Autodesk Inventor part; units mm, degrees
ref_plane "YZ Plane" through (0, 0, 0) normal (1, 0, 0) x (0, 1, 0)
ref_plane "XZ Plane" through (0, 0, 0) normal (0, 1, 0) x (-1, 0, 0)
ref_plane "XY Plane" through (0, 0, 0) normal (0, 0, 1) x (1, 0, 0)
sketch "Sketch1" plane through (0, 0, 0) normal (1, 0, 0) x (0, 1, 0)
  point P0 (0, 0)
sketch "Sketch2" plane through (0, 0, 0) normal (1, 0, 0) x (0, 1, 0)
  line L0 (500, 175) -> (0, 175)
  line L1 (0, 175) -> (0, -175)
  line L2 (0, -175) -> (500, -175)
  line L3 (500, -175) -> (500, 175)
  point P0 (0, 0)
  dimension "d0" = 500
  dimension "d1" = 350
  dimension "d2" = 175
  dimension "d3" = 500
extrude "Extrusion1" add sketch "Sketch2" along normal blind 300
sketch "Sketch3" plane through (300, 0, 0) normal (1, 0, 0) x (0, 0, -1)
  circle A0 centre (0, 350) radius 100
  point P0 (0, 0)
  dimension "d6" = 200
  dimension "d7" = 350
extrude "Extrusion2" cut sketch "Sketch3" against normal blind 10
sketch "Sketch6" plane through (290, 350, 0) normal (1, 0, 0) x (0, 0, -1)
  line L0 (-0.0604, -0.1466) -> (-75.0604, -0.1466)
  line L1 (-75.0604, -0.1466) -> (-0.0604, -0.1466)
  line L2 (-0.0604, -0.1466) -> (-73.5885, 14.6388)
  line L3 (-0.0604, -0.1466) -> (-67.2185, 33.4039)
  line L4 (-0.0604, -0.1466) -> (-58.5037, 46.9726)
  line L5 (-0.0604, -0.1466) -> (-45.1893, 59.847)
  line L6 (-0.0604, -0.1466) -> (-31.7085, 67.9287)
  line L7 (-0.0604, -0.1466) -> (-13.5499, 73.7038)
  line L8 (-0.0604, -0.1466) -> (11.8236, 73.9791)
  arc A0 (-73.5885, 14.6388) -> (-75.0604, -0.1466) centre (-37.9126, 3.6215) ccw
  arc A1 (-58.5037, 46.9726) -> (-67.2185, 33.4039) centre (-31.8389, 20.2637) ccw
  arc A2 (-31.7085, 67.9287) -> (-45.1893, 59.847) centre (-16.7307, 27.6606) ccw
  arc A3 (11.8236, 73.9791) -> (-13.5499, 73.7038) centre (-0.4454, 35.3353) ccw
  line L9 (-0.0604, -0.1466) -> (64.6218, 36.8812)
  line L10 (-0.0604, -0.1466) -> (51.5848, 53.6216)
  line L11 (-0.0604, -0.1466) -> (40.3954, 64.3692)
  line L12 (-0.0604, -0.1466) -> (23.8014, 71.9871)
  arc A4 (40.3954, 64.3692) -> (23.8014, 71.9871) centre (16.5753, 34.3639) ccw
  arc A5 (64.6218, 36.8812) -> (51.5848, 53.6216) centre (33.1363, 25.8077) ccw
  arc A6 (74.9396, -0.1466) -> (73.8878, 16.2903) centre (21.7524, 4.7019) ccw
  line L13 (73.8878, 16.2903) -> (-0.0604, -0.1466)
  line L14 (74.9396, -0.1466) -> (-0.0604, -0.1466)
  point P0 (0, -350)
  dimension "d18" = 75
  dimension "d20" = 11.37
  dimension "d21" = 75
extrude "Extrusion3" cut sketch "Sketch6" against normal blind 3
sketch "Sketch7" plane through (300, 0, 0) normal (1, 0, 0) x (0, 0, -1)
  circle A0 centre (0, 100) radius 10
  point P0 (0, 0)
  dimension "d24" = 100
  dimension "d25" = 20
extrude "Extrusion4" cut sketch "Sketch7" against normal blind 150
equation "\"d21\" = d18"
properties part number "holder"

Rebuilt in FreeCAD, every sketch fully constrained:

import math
import FreeCAD as App
import Part
import Sketcher

V = App.Vector
Q = App.Units.Quantity


def add_polygon(sketch, points):
    """Adds a closed chain of lines whose ends are joined by coincident constraints."""
    first, n = sketch.GeometryCount, len(points)
    for a, b in zip(points, points[1:] + points[:1]):
        sketch.addGeometry(Part.LineSegment(App.Vector(*a, 0), App.Vector(*b, 0)), False)
    for i in range(n):
        sketch.addConstraint(Sketcher.Constraint("Coincident", first + i, 2, first + (i + 1) % n, 1))

doc = App.newDocument("Part")
body = doc.addObject("PartDesign::Body", "Body")

# Sketch on YZ plane
sketch1 = body.newObject("Sketcher::SketchObject", "Sketch")
sketch1.AttachmentSupport = (doc.getObject("YZ_Plane"), [""])
sketch1.MapMode = "FlatFace"
add_polygon(sketch1, [(500, -175), (500, 175), (0, 175), (0, -175)])  # lines 0-3
sketch1.addConstraint([
    Sketcher.Constraint("Vertical", 0),
    Sketcher.Constraint("Horizontal", 1),
    Sketcher.Constraint("Vertical", 2),
    Sketcher.Constraint("Horizontal", 3),
    Sketcher.Constraint("Symmetric", 1, 2, 2, 2, -1, 1),
    Sketcher.Constraint("DistanceX", 1, 2, 1, 1, 500.0),
    Sketcher.Constraint("DistanceY", 0, 1, 0, 2, 350.0),
])
pad1 = body.newObject("PartDesign::Pad", "Pad")
pad1.Profile = sketch1
pad1.Length = 300

# Sketch on YZ plane
sketch2 = body.newObject("Sketcher::SketchObject", "Sketch001")
sketch2.AttachmentSupport = (doc.getObject("YZ_Plane"), [""])
sketch2.MapMode = "FlatFace"
sketch2.AttachmentOffset = App.Placement(V(0, 0, 300), App.Rotation())
sketch2.addGeometry(Part.Circle(V(350, 0, 0), V(0, 0, 1), 100), False)
sketch2.addConstraint([
    Sketcher.Constraint("PointOnObject", 0, 3, -1),
    Sketcher.Constraint("Diameter", 0, 200.0),
    Sketcher.Constraint("DistanceX", -1, 1, 0, 3, 350.0),
])
pocket1 = body.newObject("PartDesign::Pocket", "Pocket")
pocket1.Profile = sketch2
pocket1.Length = 10

# Sketch on YZ plane
sketch3 = body.newObject("Sketcher::SketchObject", "Sketch002")
sketch3.AttachmentSupport = (doc.getObject("YZ_Plane"), [""])
sketch3.MapMode = "FlatFace"
sketch3.AttachmentOffset = App.Placement(V(0, 0, 290), App.Rotation())
sketch3.addGeometry([
    Part.LineSegment(V(350, 75, 0), V(350, 0, 0)),  # 0
    Part.LineSegment(V(350, 0, 0), V(365, 74, 0)),  # 1
    Part.ArcOfCircle(Part.Circle(V(354, 38, 0), V(0, 0, 1), 37), math.radians(73), math.radians(96)),  # 2
    Part.LineSegment(V(383, 67, 0), V(350, 0, 0)),  # 3
    Part.LineSegment(V(350, 0, 0), V(397, 59, 0)),  # 4
    Part.ArcOfCircle(Part.Circle(V(370, 32, 0), V(0, 0, 1), 38), math.radians(45), math.radians(70)),  # 5
    Part.LineSegment(V(410, 45, 0), V(350, 0, 0)),  # 6
    Part.LineSegment(V(350, 0, 0), V(418, 32, 0)),  # 7
    Part.ArcOfCircle(Part.Circle(V(378, 17, 0), V(0, 0, 1), 43), math.radians(20), math.radians(41)),  # 8
    Part.LineSegment(V(424, 14, 0), V(350, 0, 0)),  # 9
    Part.LineSegment(V(350, 0, 0), V(424, -12, 0)),  # 10
    Part.ArcOfCircle(Part.Circle(V(385, 0, 0), V(0, 0, 1), 41), math.radians(-18), math.radians(19)),  # 11
    Part.LineSegment(V(404, -52, 0), V(350, 0, 0)),  # 12
    Part.LineSegment(V(350, 0, 0), V(387, -65, 0)),  # 13
    Part.ArcOfCircle(Part.Circle(V(376, -33, 0), V(0, 0, 1), 33), math.radians(-71), math.radians(-34)),  # 14
    Part.LineSegment(V(422, -24, 0), V(350, 0, 0)),  # 15
    Part.LineSegment(V(350, 0, 0), V(414, -40, 0)),  # 16
    Part.ArcOfCircle(Part.Circle(V(384, -17, 0), V(0, 0, 1), 38), math.radians(-38), math.radians(-11)),  # 17
    Part.LineSegment(V(366, -74, 0), V(350, 0, 0)),  # 18
    Part.LineSegment(V(350, 0, 0), V(350, -75, 0)),  # 19
    Part.ArcOfCircle(Part.Circle(V(355, -22, 0), V(0, 0, 1), 53), math.radians(-95.21), math.radians(-77.47)),  # 20
], False)
sketch3.addConstraint([
    Sketcher.Constraint("Coincident", 0, 2, 1, 1),
    Sketcher.Constraint("Coincident", 1, 2, 2, 1),
    Sketcher.Constraint("Coincident", 2, 2, 0, 1),
    Sketcher.Constraint("Coincident", 3, 2, 4, 1),
    Sketcher.Constraint("Coincident", 4, 2, 5, 1),
    Sketcher.Constraint("Coincident", 5, 2, 3, 1),
    Sketcher.Constraint("Coincident", 6, 2, 7, 1),
    Sketcher.Constraint("Coincident", 7, 2, 8, 1),
    Sketcher.Constraint("Coincident", 8, 2, 6, 1),
    Sketcher.Constraint("Coincident", 9, 2, 10, 1),
    Sketcher.Constraint("Coincident", 10, 2, 11, 1),
    Sketcher.Constraint("Coincident", 11, 2, 9, 1),
    Sketcher.Constraint("Coincident", 12, 2, 13, 1),
    Sketcher.Constraint("Coincident", 13, 2, 14, 1),
    Sketcher.Constraint("Coincident", 14, 2, 12, 1),
    Sketcher.Constraint("Coincident", 15, 2, 16, 1),
    Sketcher.Constraint("Coincident", 16, 2, 17, 1),
    Sketcher.Constraint("Coincident", 17, 2, 15, 1),
    Sketcher.Constraint("Coincident", 18, 2, 19, 1),
    Sketcher.Constraint("Coincident", 19, 2, 20, 1),
    Sketcher.Constraint("Coincident", 20, 2, 18, 1),
    Sketcher.Constraint("Vertical", 0),
    Sketcher.Constraint("Vertical", 19),
    Sketcher.Constraint("Coincident", 3, 2, 0, 2),
    Sketcher.Constraint("Coincident", 6, 2, 0, 2),
    Sketcher.Constraint("Coincident", 9, 2, 0, 2),
    Sketcher.Constraint("Coincident", 12, 2, 0, 2),
    Sketcher.Constraint("Coincident", 15, 2, 0, 2),
    Sketcher.Constraint("Coincident", 18, 2, 0, 2),
    Sketcher.Constraint("Equal", 0, 19),
    Sketcher.Constraint("Equal", 3, 4),
    Sketcher.Constraint("Equal", 4, 6),
    Sketcher.Constraint("Equal", 6, 7),
    Sketcher.Constraint("Equal", 7, 9),
    Sketcher.Constraint("Equal", 9, 10),
    Sketcher.Constraint("DistanceY", 0, 2, 0, 1, 75.0),
    Sketcher.Constraint("Distance", 1, 75.0),
    Sketcher.Constraint("Radius", 5, 37.742),
    Sketcher.Constraint("Radius", 14, 33.376),
    Sketcher.Constraint("Angle", 1, Q("78.6303 deg")),
    Sketcher.Constraint("Angle", 13, Q("-60.2107 deg")),
    Sketcher.Constraint("Angle", 16, Q("-32.0905 deg")),
    Sketcher.Constraint("Radius", 2, 37.3406),
    Sketcher.Constraint("Radius", 8, 42.9634),
    Sketcher.Constraint("Radius", 11, 40.5447),
    Sketcher.Constraint("Radius", 17, 38.3122),
    Sketcher.Constraint("Radius", 20, 53.4096),
    Sketcher.Constraint("DistanceY", -1, 1, 11, 2, 13.55),
    Sketcher.Constraint("DistanceY", 17, 3, 11, 3, 17.02),
    Sketcher.Constraint("DistanceY", 5, 2, 1, 2, 6.37),
    Sketcher.Constraint("DistanceY", 7, 2, 5, 2, 35.51),
    Sketcher.Constraint("DistanceX", 16, 2, 10, 2, 9.61),
    Sketcher.Constraint("Distance", 15, 75.978),
    Sketcher.Constraint("Distance", 16, 76.151),
    Sketcher.Constraint("Distance", 18, 75.753),
    Sketcher.Constraint("DistanceX", -1, 1, 2, 3, 353.621),
    Sketcher.Constraint("DistanceX", -1, 1, 5, 3, 370.263),
    Sketcher.Constraint("DistanceY", -1, 1, 5, 3, 31.838),
    Sketcher.Constraint("DistanceX", -1, 1, 5, 2, 383.404),
    Sketcher.Constraint("DistanceX", -1, 1, 8, 2, 409.847),
    Sketcher.Constraint("DistanceX", 14, 3, 8, 3, 1.853),
    Sketcher.Constraint("DistanceY", 14, 3, 8, 3, 49.867),
    Sketcher.Constraint("DistanceY", 13, 2, 14, 2, 13.037),
    Sketcher.Constraint("DistanceX", 19, 2, 20, 2, 16.437),
])
pocket2 = body.newObject("PartDesign::Pocket", "Pocket001")
pocket2.Profile = sketch3
pocket2.Length = 3

# Sketch on YZ plane
sketch4 = body.newObject("Sketcher::SketchObject", "Sketch003")
sketch4.AttachmentSupport = (doc.getObject("YZ_Plane"), [""])
sketch4.MapMode = "FlatFace"
sketch4.AttachmentOffset = App.Placement(V(0, 0, 300), App.Rotation())
sketch4.addGeometry(Part.Circle(V(100, 0, 0), V(0, 0, 1), 10), False)
sketch4.addConstraint([
    Sketcher.Constraint("PointOnObject", 0, 3, -1),
    Sketcher.Constraint("Diameter", 0, 20.0),
    Sketcher.Constraint("DistanceX", -1, 1, 0, 3, 100.0),
])
pocket3 = body.newObject("PartDesign::Pocket", "Pocket002")
pocket3.Profile = sketch4
pocket3.Length = 150

doc.recompute()
